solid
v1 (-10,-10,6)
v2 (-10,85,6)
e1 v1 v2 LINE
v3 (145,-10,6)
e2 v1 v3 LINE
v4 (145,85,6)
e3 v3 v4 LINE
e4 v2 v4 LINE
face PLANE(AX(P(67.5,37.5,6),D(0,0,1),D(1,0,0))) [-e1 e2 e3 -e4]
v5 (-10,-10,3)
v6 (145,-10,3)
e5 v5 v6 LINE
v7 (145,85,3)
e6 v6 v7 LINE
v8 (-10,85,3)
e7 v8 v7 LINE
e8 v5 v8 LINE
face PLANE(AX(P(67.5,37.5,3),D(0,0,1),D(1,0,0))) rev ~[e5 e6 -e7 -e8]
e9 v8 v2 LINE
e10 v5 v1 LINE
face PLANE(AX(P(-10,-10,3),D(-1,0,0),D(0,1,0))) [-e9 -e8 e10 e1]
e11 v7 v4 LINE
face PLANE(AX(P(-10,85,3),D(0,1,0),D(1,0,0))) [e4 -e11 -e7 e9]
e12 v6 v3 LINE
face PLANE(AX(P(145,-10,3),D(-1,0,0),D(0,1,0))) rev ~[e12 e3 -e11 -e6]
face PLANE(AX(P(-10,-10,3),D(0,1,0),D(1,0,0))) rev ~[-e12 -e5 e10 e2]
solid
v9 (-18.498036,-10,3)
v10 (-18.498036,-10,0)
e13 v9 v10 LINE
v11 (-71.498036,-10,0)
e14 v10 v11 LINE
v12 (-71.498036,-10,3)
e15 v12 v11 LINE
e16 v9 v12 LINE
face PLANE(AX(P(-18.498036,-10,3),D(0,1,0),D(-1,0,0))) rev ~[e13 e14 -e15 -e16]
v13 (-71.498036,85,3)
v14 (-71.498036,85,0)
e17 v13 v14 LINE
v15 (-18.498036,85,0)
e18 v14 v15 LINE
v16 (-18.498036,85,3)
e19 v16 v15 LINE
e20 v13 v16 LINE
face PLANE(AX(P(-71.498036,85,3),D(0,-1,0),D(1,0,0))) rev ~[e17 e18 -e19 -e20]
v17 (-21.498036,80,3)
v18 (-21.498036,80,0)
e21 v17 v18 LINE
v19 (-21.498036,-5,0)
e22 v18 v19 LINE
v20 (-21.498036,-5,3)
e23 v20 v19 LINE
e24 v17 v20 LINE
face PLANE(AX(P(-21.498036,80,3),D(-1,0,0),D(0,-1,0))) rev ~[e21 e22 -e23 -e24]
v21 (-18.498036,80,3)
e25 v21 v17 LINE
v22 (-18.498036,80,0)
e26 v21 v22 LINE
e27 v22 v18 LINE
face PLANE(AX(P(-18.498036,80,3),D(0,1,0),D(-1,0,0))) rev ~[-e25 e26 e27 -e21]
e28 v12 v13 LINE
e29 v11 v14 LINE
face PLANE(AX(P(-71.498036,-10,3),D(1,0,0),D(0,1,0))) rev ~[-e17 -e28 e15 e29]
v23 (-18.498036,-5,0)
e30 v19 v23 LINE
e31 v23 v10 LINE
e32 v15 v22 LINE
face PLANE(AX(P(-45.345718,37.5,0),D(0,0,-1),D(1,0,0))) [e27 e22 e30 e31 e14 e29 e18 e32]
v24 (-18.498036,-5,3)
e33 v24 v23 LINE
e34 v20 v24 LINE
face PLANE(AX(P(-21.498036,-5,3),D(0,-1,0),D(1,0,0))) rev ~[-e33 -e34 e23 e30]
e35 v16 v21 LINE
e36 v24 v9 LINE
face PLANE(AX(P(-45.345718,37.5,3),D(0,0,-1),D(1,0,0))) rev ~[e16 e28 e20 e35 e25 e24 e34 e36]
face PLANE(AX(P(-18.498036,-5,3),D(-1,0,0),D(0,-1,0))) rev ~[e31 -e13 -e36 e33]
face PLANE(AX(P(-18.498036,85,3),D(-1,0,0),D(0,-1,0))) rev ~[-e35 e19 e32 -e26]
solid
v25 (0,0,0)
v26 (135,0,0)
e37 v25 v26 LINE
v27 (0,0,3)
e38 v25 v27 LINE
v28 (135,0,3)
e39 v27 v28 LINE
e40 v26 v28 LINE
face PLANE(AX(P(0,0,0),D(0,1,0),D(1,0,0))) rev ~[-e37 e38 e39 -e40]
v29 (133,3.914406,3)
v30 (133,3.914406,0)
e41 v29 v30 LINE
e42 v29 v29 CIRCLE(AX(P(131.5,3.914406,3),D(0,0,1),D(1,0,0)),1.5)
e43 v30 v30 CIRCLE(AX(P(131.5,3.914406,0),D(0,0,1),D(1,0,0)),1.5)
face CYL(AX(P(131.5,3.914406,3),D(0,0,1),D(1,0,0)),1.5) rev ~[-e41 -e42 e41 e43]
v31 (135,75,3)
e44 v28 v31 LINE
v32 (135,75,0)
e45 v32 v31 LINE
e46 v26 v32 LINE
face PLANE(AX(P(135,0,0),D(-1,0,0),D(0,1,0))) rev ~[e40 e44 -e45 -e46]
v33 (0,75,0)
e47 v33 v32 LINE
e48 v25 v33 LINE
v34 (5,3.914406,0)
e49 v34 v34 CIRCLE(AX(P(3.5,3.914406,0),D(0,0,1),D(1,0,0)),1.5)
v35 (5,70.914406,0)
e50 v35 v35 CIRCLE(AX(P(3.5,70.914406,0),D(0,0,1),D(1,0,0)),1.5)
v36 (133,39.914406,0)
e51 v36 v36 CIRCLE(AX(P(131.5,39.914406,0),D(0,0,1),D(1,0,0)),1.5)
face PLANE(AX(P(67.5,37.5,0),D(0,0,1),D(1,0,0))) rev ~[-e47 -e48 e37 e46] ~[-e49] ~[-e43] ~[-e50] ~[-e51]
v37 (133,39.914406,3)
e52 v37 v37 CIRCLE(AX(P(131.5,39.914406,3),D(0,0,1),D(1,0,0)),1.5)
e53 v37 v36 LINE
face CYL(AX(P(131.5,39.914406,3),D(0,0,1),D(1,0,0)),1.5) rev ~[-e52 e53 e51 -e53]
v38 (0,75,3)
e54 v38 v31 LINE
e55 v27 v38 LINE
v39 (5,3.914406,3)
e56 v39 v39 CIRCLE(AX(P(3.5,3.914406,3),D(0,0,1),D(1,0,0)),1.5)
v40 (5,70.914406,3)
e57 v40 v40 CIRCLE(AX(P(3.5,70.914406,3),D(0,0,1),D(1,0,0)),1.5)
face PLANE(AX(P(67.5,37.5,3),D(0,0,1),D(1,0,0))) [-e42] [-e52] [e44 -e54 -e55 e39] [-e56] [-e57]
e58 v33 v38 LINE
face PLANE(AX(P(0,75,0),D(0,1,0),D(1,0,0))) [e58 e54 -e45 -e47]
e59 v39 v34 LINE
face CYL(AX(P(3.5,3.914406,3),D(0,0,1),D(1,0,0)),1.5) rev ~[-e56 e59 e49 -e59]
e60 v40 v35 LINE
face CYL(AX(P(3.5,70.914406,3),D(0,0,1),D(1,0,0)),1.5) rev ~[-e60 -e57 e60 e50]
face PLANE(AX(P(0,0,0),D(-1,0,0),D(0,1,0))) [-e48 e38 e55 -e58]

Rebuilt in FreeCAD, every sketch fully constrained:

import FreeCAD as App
import Part
import Sketcher
from FreeCAD import Vector
Q = App.Units.Quantity

doc = App.newDocument("Part")
body = doc.addObject("PartDesign::Body", "Body")

sketch1 = doc.addObject("Sketcher::SketchObject", "Sketch")
body.addObject(sketch1)
sketch1.AttachmentSupport = (doc.XY_Plane, [""])
sketch1.MapMode = "FlatFace"
sketch1.addGeometry([
    Part.LineSegment(Vector(0, 75, 0), Vector(0, 0, 0)),
    Part.LineSegment(Vector(0, 0, 0), Vector(135, 0, 0)),
    Part.LineSegment(Vector(135, 0, 0), Vector(135, 75, 0)),
    Part.LineSegment(Vector(135, 75, 0), Vector(0, 75, 0)),
], False)
sketch1.addConstraint([
    Sketcher.Constraint("Coincident", 0, 2, 1, 1),
    Sketcher.Constraint("Coincident", 1, 2, 2, 1),
    Sketcher.Constraint("Coincident", 2, 2, 3, 1),
    Sketcher.Constraint("Coincident", 3, 2, 0, 1),
    Sketcher.Constraint("Vertical", 0),
    Sketcher.Constraint("Horizontal", 1),
    Sketcher.Constraint("Vertical", 2),
    Sketcher.Constraint("Horizontal", 3),
    Sketcher.Constraint("Coincident", 0, 2, -1, 1),
    Sketcher.Constraint("DistanceX", 1, 1, 1, 2, Q("135 mm")),
    Sketcher.Constraint("DistanceY", 0, 2, 0, 1, Q("75 mm")),
])
pad1 = doc.addObject("PartDesign::Pad", "Pad")
body.addObject(pad1)
pad1.Profile = sketch1
pad1.Length = 3

sketch2 = doc.addObject("Sketcher::SketchObject", "Sketch001")
body.addObject(sketch2)
sketch2.AttachmentSupport = (doc.XY_Plane, [""])
sketch2.MapMode = "FlatFace"
sketch2.AttachmentOffset = App.Placement(Vector(0, 0, 3), App.Rotation())
sketch2.addGeometry([
    Part.Circle(Vector(3.5, 70.914406, 0), Vector(0, 0, 1), 1.5),
    Part.Circle(Vector(3.5, 3.914406, 0), Vector(0, 0, 1), 1.5),
    Part.Circle(Vector(131.5, 3.914406, 0), Vector(0, 0, 1), 1.5),
    Part.Circle(Vector(131.5, 39.914406, 0), Vector(0, 0, 1), 1.5),
], False)
sketch2.addConstraint([
    Sketcher.Constraint("Equal", 0, 1),
    Sketcher.Constraint("Equal", 1, 2),
    Sketcher.Constraint("Equal", 2, 3),
    Sketcher.Constraint("Horizontal", 1, 3, 2, 3),
    Sketcher.Constraint("Vertical", 0, 3, 1, 3),
    Sketcher.Constraint("Vertical", 2, 3, 3, 3),
    Sketcher.Constraint("Diameter", 0, Q("3 mm")),
    Sketcher.Constraint("DistanceY", 1, 3, 0, 3, Q("67 mm")),
    Sketcher.Constraint("DistanceX", 1, 3, 2, 3, Q("128 mm")),
    Sketcher.Constraint("DistanceY", 2, 3, 3, 3, Q("36 mm")),
    Sketcher.Constraint("DistanceX", -1, 1, 0, 3, Q("3.5 mm")),
    Sketcher.Constraint("DistanceY", -1, 1, 0, 3, Q("70.914406 mm")),
])
pocket1 = doc.addObject("PartDesign::Pocket", "Pocket")
body.addObject(pocket1)
pocket1.Profile = sketch2
pocket1.Length = 25
body2 = doc.addObject("PartDesign::Body", "Body001")

sketch3 = doc.addObject("Sketcher::SketchObject", "Sketch002")
body2.addObject(sketch3)
sketch3.AttachmentSupport = (doc.getObject("XY_Plane001"), [""])
sketch3.MapMode = "FlatFace"
sketch3.AttachmentOffset = App.Placement(Vector(0, 0, 3), App.Rotation())
sketch3.addGeometry([
    Part.LineSegment(Vector(-10, 85, 0), Vector(-10, -10, 0)),
    Part.LineSegment(Vector(-10, -10, 0), Vector(145, -10, 0)),
    Part.LineSegment(Vector(145, -10, 0), Vector(145, 85, 0)),
    Part.LineSegment(Vector(145, 85, 0), Vector(-10, 85, 0)),
], False)
sketch3.addConstraint([
    Sketcher.Constraint("Coincident", 0, 2, 1, 1),
    Sketcher.Constraint("Coincident", 1, 2, 2, 1),
    Sketcher.Constraint("Coincident", 2, 2, 3, 1),
    Sketcher.Constraint("Coincident", 3, 2, 0, 1),
    Sketcher.Constraint("Vertical", 0),
    Sketcher.Constraint("Horizontal", 1),
    Sketcher.Constraint("Vertical", 2),
    Sketcher.Constraint("Horizontal", 3),
    Sketcher.Constraint("DistanceX", 1, 1, 1, 2, Q("155 mm")),
    Sketcher.Constraint("DistanceY", 0, 2, 0, 1, Q("95 mm")),
    Sketcher.Constraint("DistanceX", 0, 2, -1, 1, Q("10 mm")),
    Sketcher.Constraint("DistanceY", 0, 2, -1, 1, Q("10 mm")),
])
pad2 = doc.addObject("PartDesign::Pad", "Pad001")
body2.addObject(pad2)
pad2.Profile = sketch3
pad2.Length = 3
body3 = doc.addObject("PartDesign::Body", "Body002")

sketch4 = doc.addObject("Sketcher::SketchObject", "Sketch003")
body3.addObject(sketch4)
sketch4.AttachmentSupport = (doc.getObject("XY_Plane002"), [""])
sketch4.MapMode = "FlatFace"
sketch4.AttachmentOffset = App.Placement(Vector(0, 0, 3), App.Rotation())
sketch4.addGeometry([
    Part.LineSegment(Vector(-18.498036, -10, 0), Vector(-71.498036, -10, 0)),
    Part.LineSegment(Vector(-71.498036, -10, 0), Vector(-71.498036, 85, 0)),
    Part.LineSegment(Vector(-71.498036, 85, 0), Vector(-18.498036, 85, 0)),
    Part.LineSegment(Vector(-18.498036, 85, 0), Vector(-18.498036, 80, 0)),
    Part.LineSegment(Vector(-18.498036, 80, 0), Vector(-21.498036, 80, 0)),
    Part.LineSegment(Vector(-21.498036, 80, 0), Vector(-21.498036, -5, 0)),
    Part.LineSegment(Vector(-21.498036, -5, 0), Vector(-18.498036, -5, 0)),
    Part.LineSegment(Vector(-18.498036, -5, 0), Vector(-18.498036, -10, 0)),
], False)
sketch4.addConstraint([
    Sketcher.Constraint("Coincident", 0, 2, 1, 1),
    Sketcher.Constraint("Coincident", 1, 2, 2, 1),
    Sketcher.Constraint("Coincident", 2, 2, 3, 1),
    Sketcher.Constraint("Coincident", 3, 2, 4, 1),
    Sketcher.Constraint("Coincident", 4, 2, 5, 1),
    Sketcher.Constraint("Coincident", 5, 2, 6, 1),
    Sketcher.Constraint("Coincident", 6, 2, 7, 1),
    Sketcher.Constraint("Coincident", 7, 2, 0, 1),
    Sketcher.Constraint("Horizontal", 0),
    Sketcher.Constraint("Vertical", 1),
    Sketcher.Constraint("Horizontal", 2),
    Sketcher.Constraint("Vertical", 3),
    Sketcher.Constraint("Horizontal", 4),
    Sketcher.Constraint("Vertical", 5),
    Sketcher.Constraint("Horizontal", 6),
    Sketcher.Constraint("Vertical", 7),
    Sketcher.Constraint("Vertical", 3, 2, 6, 2),
    Sketcher.Constraint("Equal", 3, 7),
    Sketcher.Constraint("DistanceX", 0, 2, 0, 1, Q("53 mm")),
    Sketcher.Constraint("DistanceX", 4, 2, 4, 1, Q("3 mm")),
    Sketcher.Constraint("DistanceY", 1, 1, 1, 2, Q("95 mm")),
    Sketcher.Constraint("DistanceY", 3, 2, 3, 1, Q("5 mm")),
    Sketcher.Constraint("DistanceY", 0, 2, -1, 1, Q("10 mm")),
    Sketcher.Constraint("DistanceX", 0, 2, -1, 1, Q("71.498036 mm")),
])
pad3 = doc.addObject("PartDesign::Pad", "Pad002")
body3.addObject(pad3)
pad3.Profile = sketch4
pad3.Length = 3
pad3.Reversed = True

doc.recompute()
